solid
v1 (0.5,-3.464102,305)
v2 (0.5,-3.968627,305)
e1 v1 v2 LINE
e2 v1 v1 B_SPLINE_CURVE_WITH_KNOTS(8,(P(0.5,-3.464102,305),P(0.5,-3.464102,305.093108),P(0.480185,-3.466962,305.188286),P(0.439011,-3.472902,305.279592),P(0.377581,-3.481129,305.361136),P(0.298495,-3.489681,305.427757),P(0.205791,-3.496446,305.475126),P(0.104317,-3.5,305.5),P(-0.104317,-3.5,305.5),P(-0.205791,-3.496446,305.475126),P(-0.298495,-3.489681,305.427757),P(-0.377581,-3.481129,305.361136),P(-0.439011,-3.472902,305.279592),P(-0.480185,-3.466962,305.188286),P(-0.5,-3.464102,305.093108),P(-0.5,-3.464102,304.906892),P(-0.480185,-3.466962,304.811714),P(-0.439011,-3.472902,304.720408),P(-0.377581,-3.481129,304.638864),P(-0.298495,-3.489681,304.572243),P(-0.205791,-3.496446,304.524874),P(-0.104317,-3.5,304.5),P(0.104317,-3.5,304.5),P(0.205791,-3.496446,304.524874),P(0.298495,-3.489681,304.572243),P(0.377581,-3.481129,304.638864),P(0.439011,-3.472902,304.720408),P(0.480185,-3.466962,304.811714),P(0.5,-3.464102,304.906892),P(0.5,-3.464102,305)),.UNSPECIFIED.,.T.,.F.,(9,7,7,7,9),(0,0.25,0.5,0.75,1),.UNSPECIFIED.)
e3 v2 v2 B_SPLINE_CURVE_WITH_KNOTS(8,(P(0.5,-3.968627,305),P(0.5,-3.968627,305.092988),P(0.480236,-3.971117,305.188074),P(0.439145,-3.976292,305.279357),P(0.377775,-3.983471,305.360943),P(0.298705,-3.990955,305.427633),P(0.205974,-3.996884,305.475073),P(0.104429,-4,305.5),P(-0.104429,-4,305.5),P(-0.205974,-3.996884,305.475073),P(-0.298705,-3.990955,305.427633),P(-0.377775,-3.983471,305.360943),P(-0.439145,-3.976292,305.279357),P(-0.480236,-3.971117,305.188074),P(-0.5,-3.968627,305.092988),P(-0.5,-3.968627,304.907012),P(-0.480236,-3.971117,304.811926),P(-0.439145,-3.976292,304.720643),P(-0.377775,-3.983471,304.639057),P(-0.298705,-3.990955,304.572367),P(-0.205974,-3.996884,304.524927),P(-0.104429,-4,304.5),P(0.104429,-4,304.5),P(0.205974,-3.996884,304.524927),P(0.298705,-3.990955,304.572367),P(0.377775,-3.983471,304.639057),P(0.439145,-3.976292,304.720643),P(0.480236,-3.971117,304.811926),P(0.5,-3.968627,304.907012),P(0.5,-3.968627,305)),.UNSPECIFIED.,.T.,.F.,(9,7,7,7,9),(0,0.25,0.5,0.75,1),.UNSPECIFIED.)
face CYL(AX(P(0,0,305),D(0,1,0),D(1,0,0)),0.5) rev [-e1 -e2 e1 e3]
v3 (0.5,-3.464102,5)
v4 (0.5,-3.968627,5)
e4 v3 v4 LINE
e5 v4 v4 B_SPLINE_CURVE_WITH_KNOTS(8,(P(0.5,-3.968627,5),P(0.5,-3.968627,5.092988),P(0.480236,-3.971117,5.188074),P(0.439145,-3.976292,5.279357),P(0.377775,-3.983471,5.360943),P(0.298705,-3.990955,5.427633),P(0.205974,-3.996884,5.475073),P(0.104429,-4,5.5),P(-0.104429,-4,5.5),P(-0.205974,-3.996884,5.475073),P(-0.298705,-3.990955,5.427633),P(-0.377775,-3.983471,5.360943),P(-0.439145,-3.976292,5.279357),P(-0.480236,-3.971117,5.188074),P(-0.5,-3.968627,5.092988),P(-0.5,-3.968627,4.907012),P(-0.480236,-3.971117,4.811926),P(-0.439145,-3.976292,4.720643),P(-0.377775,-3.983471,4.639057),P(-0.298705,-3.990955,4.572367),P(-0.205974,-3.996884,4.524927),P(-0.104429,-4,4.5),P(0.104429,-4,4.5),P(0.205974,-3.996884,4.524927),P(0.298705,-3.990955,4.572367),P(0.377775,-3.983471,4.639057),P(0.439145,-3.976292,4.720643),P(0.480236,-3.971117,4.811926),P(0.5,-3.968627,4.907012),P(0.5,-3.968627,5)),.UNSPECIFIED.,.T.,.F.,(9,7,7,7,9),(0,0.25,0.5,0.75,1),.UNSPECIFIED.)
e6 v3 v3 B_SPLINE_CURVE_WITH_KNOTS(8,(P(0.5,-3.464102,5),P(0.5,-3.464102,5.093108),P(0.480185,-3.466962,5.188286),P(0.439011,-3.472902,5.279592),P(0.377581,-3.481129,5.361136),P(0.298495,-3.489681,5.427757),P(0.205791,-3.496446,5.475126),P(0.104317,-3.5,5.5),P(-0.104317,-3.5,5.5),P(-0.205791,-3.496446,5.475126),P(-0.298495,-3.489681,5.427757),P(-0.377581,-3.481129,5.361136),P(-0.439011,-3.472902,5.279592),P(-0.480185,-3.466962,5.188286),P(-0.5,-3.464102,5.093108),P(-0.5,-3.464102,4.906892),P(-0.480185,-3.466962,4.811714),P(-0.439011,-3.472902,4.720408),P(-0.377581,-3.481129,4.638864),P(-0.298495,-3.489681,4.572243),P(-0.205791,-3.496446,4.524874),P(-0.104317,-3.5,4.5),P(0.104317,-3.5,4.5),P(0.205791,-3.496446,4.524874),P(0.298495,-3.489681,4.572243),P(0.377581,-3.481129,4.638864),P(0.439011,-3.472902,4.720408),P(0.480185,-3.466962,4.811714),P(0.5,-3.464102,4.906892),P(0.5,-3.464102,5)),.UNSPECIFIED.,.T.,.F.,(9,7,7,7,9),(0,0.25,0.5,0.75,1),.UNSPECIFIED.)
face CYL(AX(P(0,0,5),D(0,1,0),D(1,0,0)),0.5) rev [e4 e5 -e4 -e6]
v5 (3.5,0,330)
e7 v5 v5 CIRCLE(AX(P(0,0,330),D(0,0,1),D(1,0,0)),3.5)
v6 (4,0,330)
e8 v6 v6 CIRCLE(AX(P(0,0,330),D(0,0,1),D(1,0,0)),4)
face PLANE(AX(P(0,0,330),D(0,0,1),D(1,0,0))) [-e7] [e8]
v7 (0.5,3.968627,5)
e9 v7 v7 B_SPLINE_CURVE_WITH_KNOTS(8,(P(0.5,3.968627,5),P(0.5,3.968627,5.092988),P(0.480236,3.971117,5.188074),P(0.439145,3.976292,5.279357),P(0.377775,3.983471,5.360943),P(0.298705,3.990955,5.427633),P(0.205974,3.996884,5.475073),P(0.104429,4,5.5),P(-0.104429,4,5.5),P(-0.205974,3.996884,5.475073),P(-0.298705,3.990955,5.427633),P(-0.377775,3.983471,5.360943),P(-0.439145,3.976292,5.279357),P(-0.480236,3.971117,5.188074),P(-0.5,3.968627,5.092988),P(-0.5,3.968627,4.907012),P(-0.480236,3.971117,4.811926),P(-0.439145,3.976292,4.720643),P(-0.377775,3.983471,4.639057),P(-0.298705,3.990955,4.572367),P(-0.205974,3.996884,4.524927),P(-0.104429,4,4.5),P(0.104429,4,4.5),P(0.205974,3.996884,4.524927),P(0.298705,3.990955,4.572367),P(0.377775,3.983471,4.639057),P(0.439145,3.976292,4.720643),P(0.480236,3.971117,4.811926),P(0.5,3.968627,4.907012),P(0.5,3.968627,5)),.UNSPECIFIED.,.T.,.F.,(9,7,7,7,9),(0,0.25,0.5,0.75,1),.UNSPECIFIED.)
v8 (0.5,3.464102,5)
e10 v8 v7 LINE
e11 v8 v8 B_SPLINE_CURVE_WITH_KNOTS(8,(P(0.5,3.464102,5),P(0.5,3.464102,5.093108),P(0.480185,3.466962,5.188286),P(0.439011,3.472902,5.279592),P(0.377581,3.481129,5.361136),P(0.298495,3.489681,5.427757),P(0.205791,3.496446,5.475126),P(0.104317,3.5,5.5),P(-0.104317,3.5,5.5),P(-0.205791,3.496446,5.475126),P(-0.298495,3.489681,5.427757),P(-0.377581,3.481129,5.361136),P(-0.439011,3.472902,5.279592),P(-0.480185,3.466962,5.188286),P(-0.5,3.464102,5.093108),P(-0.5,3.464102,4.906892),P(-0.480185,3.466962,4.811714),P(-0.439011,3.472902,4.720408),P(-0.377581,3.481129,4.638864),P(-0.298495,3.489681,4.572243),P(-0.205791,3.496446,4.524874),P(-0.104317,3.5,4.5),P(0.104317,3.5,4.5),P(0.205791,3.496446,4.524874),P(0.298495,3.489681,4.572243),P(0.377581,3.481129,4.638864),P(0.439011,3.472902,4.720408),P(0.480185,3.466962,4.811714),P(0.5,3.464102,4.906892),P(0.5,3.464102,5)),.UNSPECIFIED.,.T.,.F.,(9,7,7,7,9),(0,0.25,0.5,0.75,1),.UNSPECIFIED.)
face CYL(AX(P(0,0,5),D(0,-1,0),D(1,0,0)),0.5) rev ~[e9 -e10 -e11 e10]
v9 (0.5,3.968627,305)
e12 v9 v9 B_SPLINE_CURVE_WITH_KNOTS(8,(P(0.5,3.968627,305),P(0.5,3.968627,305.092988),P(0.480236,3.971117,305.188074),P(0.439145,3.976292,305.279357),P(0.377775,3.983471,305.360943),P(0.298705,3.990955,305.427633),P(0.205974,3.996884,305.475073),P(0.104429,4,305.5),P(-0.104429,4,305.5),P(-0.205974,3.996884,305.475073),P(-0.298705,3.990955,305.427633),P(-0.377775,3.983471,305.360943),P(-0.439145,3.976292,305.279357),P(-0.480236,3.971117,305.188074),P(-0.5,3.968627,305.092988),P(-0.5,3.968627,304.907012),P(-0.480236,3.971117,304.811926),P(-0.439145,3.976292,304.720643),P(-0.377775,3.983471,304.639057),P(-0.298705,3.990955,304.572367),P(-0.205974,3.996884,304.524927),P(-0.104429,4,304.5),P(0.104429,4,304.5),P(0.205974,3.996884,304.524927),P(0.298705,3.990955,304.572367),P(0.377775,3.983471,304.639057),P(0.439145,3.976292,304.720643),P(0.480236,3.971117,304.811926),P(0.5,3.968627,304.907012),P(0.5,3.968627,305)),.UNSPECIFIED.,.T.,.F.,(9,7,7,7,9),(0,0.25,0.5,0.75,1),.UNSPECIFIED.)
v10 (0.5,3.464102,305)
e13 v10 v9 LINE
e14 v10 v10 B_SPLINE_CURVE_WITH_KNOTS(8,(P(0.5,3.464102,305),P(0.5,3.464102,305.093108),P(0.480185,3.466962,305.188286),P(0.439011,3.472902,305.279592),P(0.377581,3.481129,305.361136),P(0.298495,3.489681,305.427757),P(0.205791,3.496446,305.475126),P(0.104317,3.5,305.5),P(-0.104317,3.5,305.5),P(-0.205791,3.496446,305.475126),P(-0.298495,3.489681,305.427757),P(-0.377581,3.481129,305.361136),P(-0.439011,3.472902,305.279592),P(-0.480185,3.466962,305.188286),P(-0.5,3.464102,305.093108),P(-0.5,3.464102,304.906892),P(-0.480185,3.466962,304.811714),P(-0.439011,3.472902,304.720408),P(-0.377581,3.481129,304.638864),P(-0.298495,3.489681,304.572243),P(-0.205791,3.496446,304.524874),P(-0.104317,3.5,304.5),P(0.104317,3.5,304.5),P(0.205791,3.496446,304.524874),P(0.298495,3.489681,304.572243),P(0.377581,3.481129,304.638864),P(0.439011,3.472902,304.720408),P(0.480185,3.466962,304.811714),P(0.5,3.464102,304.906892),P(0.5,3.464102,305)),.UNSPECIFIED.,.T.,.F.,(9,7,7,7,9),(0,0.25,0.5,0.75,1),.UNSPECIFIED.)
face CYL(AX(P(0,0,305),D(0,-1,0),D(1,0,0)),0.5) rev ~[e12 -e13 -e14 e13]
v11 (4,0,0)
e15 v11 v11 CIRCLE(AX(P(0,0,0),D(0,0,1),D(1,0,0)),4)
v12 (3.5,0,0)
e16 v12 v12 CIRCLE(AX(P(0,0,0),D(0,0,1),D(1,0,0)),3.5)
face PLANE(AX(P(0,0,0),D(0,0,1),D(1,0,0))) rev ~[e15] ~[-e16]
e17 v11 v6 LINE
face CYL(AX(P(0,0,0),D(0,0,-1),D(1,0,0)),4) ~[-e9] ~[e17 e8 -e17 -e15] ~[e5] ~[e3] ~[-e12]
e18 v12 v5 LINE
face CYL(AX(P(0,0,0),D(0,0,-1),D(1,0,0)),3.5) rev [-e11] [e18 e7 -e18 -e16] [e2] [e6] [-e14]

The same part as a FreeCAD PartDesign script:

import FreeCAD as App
import Part
import Sketcher
from FreeCAD import Vector
Q = App.Units.Quantity

doc = App.newDocument("Part")
params = doc.addObject("Spreadsheet::Sheet", "Params")
for row, (alias, value) in enumerate([
    ("sketch1_diameter", "8 mm"),
    ("sketch1_diameter2", "7 mm"),
    ("pad1_length", "330 mm"),
    ("sketch2_diameter", "1 mm"),
], start=1):
    params.set(f"A{row}", alias)
    params.set(f"B{row}", "=" + value)
    params.setAlias(f"B{row}", alias)

body = doc.addObject("PartDesign::Body", "Body")

# Sketch on XY plane
sketch1 = doc.addObject("Sketcher::SketchObject", "Sketch")
body.addObject(sketch1)
sketch1.AttachmentSupport = (doc.XY_Plane, [""])
sketch1.MapMode = "FlatFace"
sketch1.addGeometry([
    Part.Circle(Vector(0, 0, 0), Vector(0, 0, 1), 4),
    Part.Circle(Vector(0, 0, 0), Vector(0, 0, 1), 3.5),
], False)
sketch1.addConstraint([
    Sketcher.Constraint("Coincident", 0, 3, -1, 1),
    Sketcher.Constraint("Coincident", 1, 3, -1, 1),
    Sketcher.Constraint("Diameter", 0, Q("8 mm")),
    Sketcher.Constraint("Diameter", 1, Q("7 mm")),
])
sketch1.setExpression("Constraints[2]", "Params.sketch1_diameter")
sketch1.setExpression("Constraints[3]", "Params.sketch1_diameter2")
pad1 = doc.addObject("PartDesign::Pad", "Pad")
body.addObject(pad1)
pad1.Profile = sketch1
pad1.setExpression("Length", "Params.pad1_length")

# Sketch on XZ plane
sketch2 = doc.addObject("Sketcher::SketchObject", "Sketch001")
body.addObject(sketch2)
sketch2.AttachmentSupport = (doc.XZ_Plane, [""])
sketch2.MapMode = "FlatFace"
sketch2.addGeometry([
    Part.Circle(Vector(0, 5, 0), Vector(0, 0, 1), 0.5),
    Part.Circle(Vector(0, 305, 0), Vector(0, 0, 1), 0.5),
], False)
sketch2.addConstraint([
    Sketcher.Constraint("Equal", 0, 1),
    Sketcher.Constraint("PointOnObject", 0, 3, -2),
    Sketcher.Constraint("PointOnObject", 1, 3, -2),
    Sketcher.Constraint("Diameter", 0, Q("1 mm")),
    Sketcher.Constraint("DistanceY", -1, 1, 0, 3, Q("5 mm")),
    Sketcher.Constraint("DistanceY", -1, 1, 1, 3, Q("305 mm")),
])
sketch2.setExpression("Constraints[3]", "Params.sketch2_diameter")
pocket1 = doc.addObject("PartDesign::Pocket", "Pocket")
body.addObject(pocket1)
pocket1.Profile = sketch2
pocket1.Type = "ThroughAll"
pocket1.Midplane = True

doc.recompute()
